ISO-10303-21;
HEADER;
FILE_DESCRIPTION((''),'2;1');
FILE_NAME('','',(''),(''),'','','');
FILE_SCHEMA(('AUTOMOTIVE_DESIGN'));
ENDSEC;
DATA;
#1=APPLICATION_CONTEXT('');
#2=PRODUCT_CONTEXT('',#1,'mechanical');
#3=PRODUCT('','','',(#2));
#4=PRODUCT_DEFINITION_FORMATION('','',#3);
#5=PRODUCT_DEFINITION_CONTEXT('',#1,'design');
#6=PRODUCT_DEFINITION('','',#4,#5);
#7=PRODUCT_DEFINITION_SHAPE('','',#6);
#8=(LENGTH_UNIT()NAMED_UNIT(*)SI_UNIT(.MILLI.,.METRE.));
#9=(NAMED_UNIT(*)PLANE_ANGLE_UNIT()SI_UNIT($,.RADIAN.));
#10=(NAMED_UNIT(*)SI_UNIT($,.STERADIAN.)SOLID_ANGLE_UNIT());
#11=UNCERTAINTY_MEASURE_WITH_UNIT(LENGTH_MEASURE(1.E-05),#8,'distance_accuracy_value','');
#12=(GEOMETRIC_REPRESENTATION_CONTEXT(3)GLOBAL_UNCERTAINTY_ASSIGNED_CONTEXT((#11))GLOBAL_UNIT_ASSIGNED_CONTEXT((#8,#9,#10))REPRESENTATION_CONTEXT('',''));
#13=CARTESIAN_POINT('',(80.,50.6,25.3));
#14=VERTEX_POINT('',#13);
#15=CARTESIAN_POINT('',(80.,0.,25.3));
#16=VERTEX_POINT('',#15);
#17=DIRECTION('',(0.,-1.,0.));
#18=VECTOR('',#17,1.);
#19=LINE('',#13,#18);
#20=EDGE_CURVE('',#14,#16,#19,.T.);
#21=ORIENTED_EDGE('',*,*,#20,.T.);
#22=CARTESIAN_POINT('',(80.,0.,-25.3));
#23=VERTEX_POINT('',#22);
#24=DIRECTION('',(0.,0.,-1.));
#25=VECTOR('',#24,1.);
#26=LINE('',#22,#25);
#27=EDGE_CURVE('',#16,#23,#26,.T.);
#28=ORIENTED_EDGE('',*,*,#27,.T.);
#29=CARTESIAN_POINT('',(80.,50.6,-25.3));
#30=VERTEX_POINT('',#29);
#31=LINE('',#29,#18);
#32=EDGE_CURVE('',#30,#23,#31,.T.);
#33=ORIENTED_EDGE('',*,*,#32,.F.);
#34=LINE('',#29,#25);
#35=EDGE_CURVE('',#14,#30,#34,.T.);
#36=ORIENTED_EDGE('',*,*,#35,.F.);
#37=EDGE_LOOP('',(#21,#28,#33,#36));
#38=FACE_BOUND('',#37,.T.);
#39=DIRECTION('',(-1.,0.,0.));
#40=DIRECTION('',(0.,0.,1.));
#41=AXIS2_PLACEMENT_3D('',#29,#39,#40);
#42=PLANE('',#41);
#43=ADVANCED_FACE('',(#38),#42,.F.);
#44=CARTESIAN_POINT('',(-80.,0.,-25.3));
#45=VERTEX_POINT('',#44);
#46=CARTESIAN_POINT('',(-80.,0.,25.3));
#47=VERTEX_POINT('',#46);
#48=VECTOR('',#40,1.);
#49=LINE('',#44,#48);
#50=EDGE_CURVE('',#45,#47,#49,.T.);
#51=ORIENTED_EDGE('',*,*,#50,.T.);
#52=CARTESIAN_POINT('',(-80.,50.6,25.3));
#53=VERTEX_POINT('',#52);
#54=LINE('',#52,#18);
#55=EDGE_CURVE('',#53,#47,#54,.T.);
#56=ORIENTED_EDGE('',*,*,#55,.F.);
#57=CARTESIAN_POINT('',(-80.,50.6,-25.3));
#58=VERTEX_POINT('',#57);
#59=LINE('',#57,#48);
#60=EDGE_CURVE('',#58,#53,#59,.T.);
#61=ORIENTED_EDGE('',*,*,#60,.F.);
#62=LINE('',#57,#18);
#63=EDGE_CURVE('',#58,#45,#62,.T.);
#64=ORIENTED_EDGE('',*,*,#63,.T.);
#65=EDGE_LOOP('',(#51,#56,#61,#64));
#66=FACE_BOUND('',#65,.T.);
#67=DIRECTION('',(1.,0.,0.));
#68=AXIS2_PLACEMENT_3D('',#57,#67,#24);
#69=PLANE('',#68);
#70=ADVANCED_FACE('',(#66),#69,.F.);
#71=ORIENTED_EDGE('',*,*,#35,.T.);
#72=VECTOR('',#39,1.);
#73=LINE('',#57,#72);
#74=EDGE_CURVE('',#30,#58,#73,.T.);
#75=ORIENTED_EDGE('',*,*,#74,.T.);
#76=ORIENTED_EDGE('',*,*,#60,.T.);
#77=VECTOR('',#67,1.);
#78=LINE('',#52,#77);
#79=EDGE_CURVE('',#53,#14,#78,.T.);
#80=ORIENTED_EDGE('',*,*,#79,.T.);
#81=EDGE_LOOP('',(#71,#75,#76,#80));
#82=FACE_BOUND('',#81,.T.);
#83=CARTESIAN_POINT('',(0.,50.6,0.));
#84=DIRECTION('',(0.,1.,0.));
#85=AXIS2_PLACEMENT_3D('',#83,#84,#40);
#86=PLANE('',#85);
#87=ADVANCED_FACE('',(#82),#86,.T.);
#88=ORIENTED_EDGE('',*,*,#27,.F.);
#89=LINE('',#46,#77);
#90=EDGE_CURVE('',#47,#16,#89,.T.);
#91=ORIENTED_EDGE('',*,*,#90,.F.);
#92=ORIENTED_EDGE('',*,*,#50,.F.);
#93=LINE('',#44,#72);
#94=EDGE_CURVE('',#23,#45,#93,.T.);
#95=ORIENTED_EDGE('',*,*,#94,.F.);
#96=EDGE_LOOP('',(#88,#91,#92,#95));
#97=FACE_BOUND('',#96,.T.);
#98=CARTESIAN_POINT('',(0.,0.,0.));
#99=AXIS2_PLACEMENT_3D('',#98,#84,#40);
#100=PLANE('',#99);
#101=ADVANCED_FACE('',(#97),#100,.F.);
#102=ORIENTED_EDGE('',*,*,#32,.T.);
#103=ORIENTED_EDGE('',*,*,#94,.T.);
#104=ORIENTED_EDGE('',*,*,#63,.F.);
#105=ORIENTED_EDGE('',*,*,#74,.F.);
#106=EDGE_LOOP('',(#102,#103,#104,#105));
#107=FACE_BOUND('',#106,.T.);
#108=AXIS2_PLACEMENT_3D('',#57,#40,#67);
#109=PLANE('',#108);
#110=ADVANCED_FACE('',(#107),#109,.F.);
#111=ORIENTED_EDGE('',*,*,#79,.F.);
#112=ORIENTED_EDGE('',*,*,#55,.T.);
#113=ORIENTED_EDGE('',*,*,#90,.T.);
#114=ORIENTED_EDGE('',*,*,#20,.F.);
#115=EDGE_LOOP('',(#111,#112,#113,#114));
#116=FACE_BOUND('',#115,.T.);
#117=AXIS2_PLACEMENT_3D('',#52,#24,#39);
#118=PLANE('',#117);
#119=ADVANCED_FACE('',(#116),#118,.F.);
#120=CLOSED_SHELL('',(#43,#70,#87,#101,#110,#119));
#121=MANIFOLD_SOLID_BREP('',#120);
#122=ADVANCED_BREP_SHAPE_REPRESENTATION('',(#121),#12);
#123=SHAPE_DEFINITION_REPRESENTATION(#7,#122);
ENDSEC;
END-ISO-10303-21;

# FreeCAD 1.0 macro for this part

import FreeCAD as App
import Part
import Sketcher
Q = App.Units.Quantity


def add_polygon(sketch, points):
    """Adds a closed chain of lines whose ends are joined by coincident constraints."""
    first, n = sketch.GeometryCount, len(points)
    for a, b in zip(points, points[1:] + points[:1]):
        sketch.addGeometry(Part.LineSegment(App.Vector(*a, 0), App.Vector(*b, 0)), False)
    for i in range(n):
        sketch.addConstraint(Sketcher.Constraint("Coincident", first + i, 2, first + (i + 1) % n, 1))

doc = App.newDocument("Part")
params = doc.addObject("Spreadsheet::Sheet", "Params")
for row, (alias, value) in enumerate([
    ("sketch1_width", "160 mm"),
    ("sketch1_height", "50.6 mm"),
    ("pad1_length", "50.6 mm"),
], start=1):
    params.set(f"A{row}", alias)
    params.set(f"B{row}", "=" + value)
    params.setAlias(f"B{row}", alias)

body = doc.addObject("PartDesign::Body", "Body")

# Sketch on XZ plane
sketch1 = doc.addObject("Sketcher::SketchObject", "Sketch")
body.addObject(sketch1)
sketch1.AttachmentSupport = (doc.XZ_Plane, [""])
sketch1.MapMode = "FlatFace"
add_polygon(sketch1, [(-80, -25.3), (-80, 25.3), (80, 25.3), (80, -25.3)])  # lines 0-3
sketch1.addConstraint(Sketcher.Constraint("Vertical", 0))
sketch1.addConstraint(Sketcher.Constraint("Horizontal", 1))
sketch1.addConstraint(Sketcher.Constraint("Vertical", 2))
sketch1.addConstraint(Sketcher.Constraint("Horizontal", 3))
sketch1.addConstraint(Sketcher.Constraint("Symmetric", 0, 2, 2, 2, -1, 1))
sketch1.addConstraint(Sketcher.Constraint("DistanceX", 1, 1, 1, 2, Q("160 mm")))
sketch1.addConstraint(Sketcher.Constraint("DistanceY", 0, 1, 0, 2, Q("50.6 mm")))
sketch1.setExpression("Constraints[9]", "Params.sketch1_width")
sketch1.setExpression("Constraints[10]", "Params.sketch1_height")
pad1 = doc.addObject("PartDesign::Pad", "Pad")
body.addObject(pad1)
pad1.Profile = sketch1
pad1.setExpression("Length", "Params.pad1_length")
pad1.Reversed = True

doc.recompute()
